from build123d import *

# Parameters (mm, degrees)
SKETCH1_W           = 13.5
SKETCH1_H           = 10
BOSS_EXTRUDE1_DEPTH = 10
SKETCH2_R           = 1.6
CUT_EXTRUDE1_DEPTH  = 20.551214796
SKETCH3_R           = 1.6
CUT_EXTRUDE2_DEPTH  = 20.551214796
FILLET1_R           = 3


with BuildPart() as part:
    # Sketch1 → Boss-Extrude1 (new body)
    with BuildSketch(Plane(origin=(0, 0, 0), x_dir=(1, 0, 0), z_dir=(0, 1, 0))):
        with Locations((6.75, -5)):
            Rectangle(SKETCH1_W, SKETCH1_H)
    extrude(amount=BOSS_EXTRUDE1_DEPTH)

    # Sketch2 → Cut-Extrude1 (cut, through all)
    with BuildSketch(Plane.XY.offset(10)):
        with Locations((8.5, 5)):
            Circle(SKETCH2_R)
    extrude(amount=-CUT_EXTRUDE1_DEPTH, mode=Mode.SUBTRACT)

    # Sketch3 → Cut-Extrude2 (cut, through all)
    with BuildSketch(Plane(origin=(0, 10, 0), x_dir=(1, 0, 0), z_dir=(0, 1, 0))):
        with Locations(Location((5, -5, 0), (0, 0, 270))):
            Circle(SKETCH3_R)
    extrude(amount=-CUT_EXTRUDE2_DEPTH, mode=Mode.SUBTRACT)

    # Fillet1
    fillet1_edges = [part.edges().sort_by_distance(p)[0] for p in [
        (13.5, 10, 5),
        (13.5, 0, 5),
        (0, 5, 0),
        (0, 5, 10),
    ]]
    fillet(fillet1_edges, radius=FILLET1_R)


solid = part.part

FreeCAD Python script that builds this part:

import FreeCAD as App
import Part
import Sketcher

V = App.Vector


def edges_at(feature, points):
    """Names of the edges that pass closest to the given points."""
    edges = feature.Shape.Edges
    near = lambda p: min(range(len(edges)), key=lambda i: edges[i].distToShape(Part.Vertex(*p))[0])
    return sorted({f"Edge{near(p) + 1}" for p in points})

doc = App.newDocument("Part")
body = doc.addObject("PartDesign::Body", "Body")

sketch1 = doc.addObject("Sketcher::SketchObject", "Sketch")
body.addObject(sketch1)
sketch1.AttachmentSupport = (doc.XZ_Plane, [""])
sketch1.MapMode = "FlatFace"
sketch1.addGeometry([
    Part.LineSegment(V(0, 0, 0), V(0, 10, 0)),
    Part.LineSegment(V(0, 10, 0), V(14, 10, 0)),
    Part.LineSegment(V(14, 10, 0), V(14, 0, 0)),
    Part.LineSegment(V(14, 0, 0), V(0, 0, 0)),
], False)
sketch1.addConstraint([
    Sketcher.Constraint("Coincident", 0, 2, 1, 1),
    Sketcher.Constraint("Coincident", 1, 2, 2, 1),
    Sketcher.Constraint("Coincident", 2, 2, 3, 1),
    Sketcher.Constraint("Coincident", 3, 2, 0, 1),
    Sketcher.Constraint("Vertical", 0),
    Sketcher.Constraint("Horizontal", 1),
    Sketcher.Constraint("Vertical", 2),
    Sketcher.Constraint("Horizontal", 3),
    Sketcher.Constraint("Coincident", 3, 2, -1, 1),
    Sketcher.Constraint("DistanceY", 0, 1, 0, 2, 10.0),
    Sketcher.Constraint("DistanceX", 1, 1, 1, 2, 13.5),
])
pad1 = doc.addObject("PartDesign::Pad", "Pad")
body.addObject(pad1)
pad1.Profile = sketch1
pad1.Length = 10
pad1.Reversed = True

sketch2 = doc.addObject("Sketcher::SketchObject", "Sketch001")
body.addObject(sketch2)
sketch2.AttachmentSupport = (doc.XY_Plane, [""])
sketch2.MapMode = "FlatFace"
sketch2.AttachmentOffset = App.Placement(V(0, 0, 10), App.Rotation())
sketch2.addGeometry(Part.Circle(V(8.5, 5, 0), V(0, 0, 1), 1.6), False)
sketch2.addConstraint([
    Sketcher.Constraint("Diameter", 0, 3.2),
    Sketcher.Constraint("DistanceY", -1, 1, 0, 3, 5.0),
    Sketcher.Constraint("DistanceX", -1, 1, 0, 3, 8.5),
])
pocket1 = doc.addObject("PartDesign::Pocket", "Pocket")
body.addObject(pocket1)
pocket1.Profile = sketch2
pocket1.Type = "ThroughAll"

sketch3 = doc.addObject("Sketcher::SketchObject", "Sketch002")
body.addObject(sketch3)
sketch3.AttachmentSupport = (doc.XZ_Plane, [""])
sketch3.MapMode = "FlatFace"
sketch3.AttachmentOffset = App.Placement(V(0, 0, -10), App.Rotation())
sketch3.addGeometry(Part.Circle(V(5, 5, 0), V(0, 0, 1), 1.6), False)
sketch3.addConstraint([
    Sketcher.Constraint("Diameter", 0, 3.2),
    Sketcher.Constraint("DistanceX", -1, 1, 0, 3, 5.0),
    Sketcher.Constraint("DistanceY", -1, 1, 0, 3, 5.0),
])
pocket2 = doc.addObject("PartDesign::Pocket", "Pocket001")
body.addObject(pocket2)
pocket2.Profile = sketch3
pocket2.Type = "ThroughAll"
pocket2.Reversed = True
doc.recompute()

fillet = doc.addObject("PartDesign::Fillet", "Fillet")
body.addObject(fillet)
fillet.Base = (pocket2, edges_at(pocket2, [
    (13.5, 10, 5),
    (13.5, 0, 5),
    (0, 5, 0),
    (0, 5, 10),
]))
fillet.Radius = 3

doc.recompute()
